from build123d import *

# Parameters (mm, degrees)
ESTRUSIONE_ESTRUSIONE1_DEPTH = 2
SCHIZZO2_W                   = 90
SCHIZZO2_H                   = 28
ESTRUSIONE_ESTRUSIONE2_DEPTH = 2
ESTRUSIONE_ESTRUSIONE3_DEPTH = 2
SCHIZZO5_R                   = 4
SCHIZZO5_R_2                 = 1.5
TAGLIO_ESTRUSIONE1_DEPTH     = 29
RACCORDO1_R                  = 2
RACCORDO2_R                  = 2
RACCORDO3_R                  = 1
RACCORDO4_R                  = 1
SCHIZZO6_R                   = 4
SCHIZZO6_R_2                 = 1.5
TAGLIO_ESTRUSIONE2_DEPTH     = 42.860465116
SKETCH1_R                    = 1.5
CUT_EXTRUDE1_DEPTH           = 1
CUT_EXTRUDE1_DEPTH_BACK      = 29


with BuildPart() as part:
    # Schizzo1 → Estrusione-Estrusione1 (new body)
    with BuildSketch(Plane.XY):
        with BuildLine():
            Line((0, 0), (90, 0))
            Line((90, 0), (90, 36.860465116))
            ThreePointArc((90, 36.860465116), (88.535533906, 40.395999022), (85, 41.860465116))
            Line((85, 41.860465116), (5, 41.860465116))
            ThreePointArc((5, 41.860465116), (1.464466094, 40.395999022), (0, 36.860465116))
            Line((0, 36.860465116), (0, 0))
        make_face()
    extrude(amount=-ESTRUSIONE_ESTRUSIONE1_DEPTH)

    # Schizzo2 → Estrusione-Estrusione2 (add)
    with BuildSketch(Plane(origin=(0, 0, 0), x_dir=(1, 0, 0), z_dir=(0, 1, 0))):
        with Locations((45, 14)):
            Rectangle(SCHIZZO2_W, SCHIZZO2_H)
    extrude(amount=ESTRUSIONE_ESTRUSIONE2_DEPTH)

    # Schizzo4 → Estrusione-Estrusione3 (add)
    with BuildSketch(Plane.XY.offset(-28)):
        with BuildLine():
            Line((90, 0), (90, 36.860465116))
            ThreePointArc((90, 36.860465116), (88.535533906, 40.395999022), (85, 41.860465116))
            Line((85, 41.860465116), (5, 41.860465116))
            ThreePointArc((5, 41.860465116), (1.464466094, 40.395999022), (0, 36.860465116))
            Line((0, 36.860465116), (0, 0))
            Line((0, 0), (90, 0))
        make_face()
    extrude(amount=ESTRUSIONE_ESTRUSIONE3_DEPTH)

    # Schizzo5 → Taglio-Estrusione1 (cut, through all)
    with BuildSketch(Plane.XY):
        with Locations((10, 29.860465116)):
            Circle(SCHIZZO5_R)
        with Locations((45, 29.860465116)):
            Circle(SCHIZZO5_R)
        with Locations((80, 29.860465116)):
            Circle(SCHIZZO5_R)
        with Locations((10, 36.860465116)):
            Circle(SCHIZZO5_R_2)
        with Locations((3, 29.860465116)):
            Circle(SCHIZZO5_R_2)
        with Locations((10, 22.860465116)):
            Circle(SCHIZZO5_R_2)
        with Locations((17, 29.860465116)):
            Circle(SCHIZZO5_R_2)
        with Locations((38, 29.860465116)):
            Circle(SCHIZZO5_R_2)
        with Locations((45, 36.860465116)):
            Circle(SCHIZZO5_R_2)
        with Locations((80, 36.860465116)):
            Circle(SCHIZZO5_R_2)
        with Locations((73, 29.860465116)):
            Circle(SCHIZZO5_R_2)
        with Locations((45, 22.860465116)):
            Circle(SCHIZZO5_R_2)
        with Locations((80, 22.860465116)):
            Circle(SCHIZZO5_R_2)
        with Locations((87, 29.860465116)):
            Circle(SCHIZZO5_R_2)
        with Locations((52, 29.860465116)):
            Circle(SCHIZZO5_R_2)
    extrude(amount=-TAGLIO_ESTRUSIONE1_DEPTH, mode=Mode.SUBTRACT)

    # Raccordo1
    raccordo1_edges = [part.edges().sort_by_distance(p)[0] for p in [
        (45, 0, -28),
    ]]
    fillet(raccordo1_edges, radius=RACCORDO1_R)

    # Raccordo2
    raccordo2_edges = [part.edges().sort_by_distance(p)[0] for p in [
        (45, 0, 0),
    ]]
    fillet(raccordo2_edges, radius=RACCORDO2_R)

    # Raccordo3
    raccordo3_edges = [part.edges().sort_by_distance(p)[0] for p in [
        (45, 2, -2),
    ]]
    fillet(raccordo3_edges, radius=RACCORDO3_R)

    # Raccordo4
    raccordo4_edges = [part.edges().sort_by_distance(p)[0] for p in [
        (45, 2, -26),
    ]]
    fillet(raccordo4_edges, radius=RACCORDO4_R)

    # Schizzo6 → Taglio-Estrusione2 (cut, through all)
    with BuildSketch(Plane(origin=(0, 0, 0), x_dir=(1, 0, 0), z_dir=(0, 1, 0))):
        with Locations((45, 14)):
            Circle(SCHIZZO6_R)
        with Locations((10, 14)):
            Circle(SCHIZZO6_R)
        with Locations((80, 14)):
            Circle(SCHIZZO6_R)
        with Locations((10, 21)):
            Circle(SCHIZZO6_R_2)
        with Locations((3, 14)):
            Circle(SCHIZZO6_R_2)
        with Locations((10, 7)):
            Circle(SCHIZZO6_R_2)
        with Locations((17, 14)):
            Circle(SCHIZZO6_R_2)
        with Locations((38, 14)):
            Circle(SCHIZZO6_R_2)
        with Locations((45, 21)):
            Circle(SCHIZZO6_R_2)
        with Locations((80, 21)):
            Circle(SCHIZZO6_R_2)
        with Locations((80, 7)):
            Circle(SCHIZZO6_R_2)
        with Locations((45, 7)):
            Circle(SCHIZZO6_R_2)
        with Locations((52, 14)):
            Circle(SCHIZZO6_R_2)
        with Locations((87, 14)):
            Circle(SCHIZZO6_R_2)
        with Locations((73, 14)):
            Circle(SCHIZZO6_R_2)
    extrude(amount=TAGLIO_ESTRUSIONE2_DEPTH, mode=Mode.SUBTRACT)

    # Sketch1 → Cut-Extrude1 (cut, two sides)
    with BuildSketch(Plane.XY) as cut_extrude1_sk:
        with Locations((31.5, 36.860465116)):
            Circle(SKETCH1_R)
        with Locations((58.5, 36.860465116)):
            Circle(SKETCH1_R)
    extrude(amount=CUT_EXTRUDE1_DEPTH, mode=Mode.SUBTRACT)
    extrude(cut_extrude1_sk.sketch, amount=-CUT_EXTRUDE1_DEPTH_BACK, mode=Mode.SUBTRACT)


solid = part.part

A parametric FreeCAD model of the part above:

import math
import FreeCAD as App
import Part
import Sketcher
Q = App.Units.Quantity


def edges_at(feature, points):
    """Names of the edges that pass closest to the given points."""
    edges = feature.Shape.Edges
    near = lambda p: min(range(len(edges)), key=lambda i: edges[i].distToShape(Part.Vertex(*p))[0])
    return sorted({f"Edge{near(p) + 1}" for p in points})

doc = App.newDocument("Part")
body = doc.addObject("PartDesign::Body", "Body")

# Sketch on XY plane
sketch1 = body.newObject("Sketcher::SketchObject", "Sketch")
sketch1.AttachmentSupport = (doc.getObject("XY_Plane"), [""])
sketch1.MapMode = "FlatFace"
sketch1.addGeometry(Part.LineSegment(App.Vector(0, 0, 0), App.Vector(90, 0, 0)), False)
sketch1.addGeometry(Part.LineSegment(App.Vector(90, 0, 0), App.Vector(90, 36.860465, 0)), False)
sketch1.addGeometry(Part.ArcOfCircle(Part.Circle(App.Vector(85, 36.860465, 0), App.Vector(0, 0, 1), 5), math.radians(0), math.radians(90)), False)
sketch1.addGeometry(Part.LineSegment(App.Vector(85, 41.860465, 0), App.Vector(5, 41.860465, 0)), False)
sketch1.addGeometry(Part.ArcOfCircle(Part.Circle(App.Vector(5, 36.860465, 0), App.Vector(0, 0, 1), 5), math.radians(90), math.radians(180)), False)
sketch1.addGeometry(Part.LineSegment(App.Vector(0, 36.860465, 0), App.Vector(0, 0, 0)), False)
sketch1.addConstraint(Sketcher.Constraint("Coincident", 0, 2, 1, 1))
sketch1.addConstraint(Sketcher.Constraint("Tangent", 1, 2, 2, 1))
sketch1.addConstraint(Sketcher.Constraint("Tangent", 2, 2, 3, 1))
sketch1.addConstraint(Sketcher.Constraint("Tangent", 3, 2, 4, 1))
sketch1.addConstraint(Sketcher.Constraint("Tangent", 4, 2, 5, 1))
sketch1.addConstraint(Sketcher.Constraint("Coincident", 5, 2, 0, 1))
sketch1.addConstraint(Sketcher.Constraint("Horizontal", 0))
sketch1.addConstraint(Sketcher.Constraint("Vertical", 1))
sketch1.addConstraint(Sketcher.Constraint("Horizontal", 3))
sketch1.addConstraint(Sketcher.Constraint("Vertical", 5))
sketch1.addConstraint(Sketcher.Constraint("Coincident", 5, 2, -1, 1))
sketch1.addConstraint(Sketcher.Constraint("Equal", 2, 4))
sketch1.addConstraint(Sketcher.Constraint("Radius", 2, Q("5 mm")))
sketch1.addConstraint(Sketcher.Constraint("DistanceX", 0, 1, 0, 2, Q("90 mm")))
sketch1.addConstraint(Sketcher.Constraint("DistanceY", 1, 1, 1, 2, Q("36.860465 mm")))
pad1 = body.newObject("PartDesign::Pad", "Pad")
pad1.Profile = sketch1
pad1.Length = 2
pad1.Reversed = True

# Sketch on XZ plane
sketch2 = body.newObject("Sketcher::SketchObject", "Sketch001")
sketch2.AttachmentSupport = (doc.getObject("XZ_Plane"), [""])
sketch2.MapMode = "FlatFace"
sketch2.addGeometry(Part.LineSegment(App.Vector(0, -28, 0), App.Vector(0, 0, 0)), False)
sketch2.addGeometry(Part.LineSegment(App.Vector(0, 0, 0), App.Vector(90, 0, 0)), False)
sketch2.addGeometry(Part.LineSegment(App.Vector(90, 0, 0), App.Vector(90, -28, 0)), False)
sketch2.addGeometry(Part.LineSegment(App.Vector(90, -28, 0), App.Vector(0, -28, 0)), False)
sketch2.addConstraint(Sketcher.Constraint("Coincident", 0, 2, 1, 1))
sketch2.addConstraint(Sketcher.Constraint("Coincident", 1, 2, 2, 1))
sketch2.addConstraint(Sketcher.Constraint("Coincident", 2, 2, 3, 1))
sketch2.addConstraint(Sketcher.Constraint("Coincident", 3, 2, 0, 1))
sketch2.addConstraint(Sketcher.Constraint("Vertical", 0))
sketch2.addConstraint(Sketcher.Constraint("Horizontal", 1))
sketch2.addConstraint(Sketcher.Constraint("Vertical", 2))
sketch2.addConstraint(Sketcher.Constraint("Horizontal", 3))
sketch2.addConstraint(Sketcher.Constraint("Coincident", 0, 2, -1, 1))
sketch2.addConstraint(Sketcher.Constraint("DistanceX", 1, 1, 1, 2, Q("90 mm")))
sketch2.addConstraint(Sketcher.Constraint("DistanceY", 0, 1, 0, 2, Q("28 mm")))
pad2 = body.newObject("PartDesign::Pad", "Pad001")
pad2.Profile = sketch2
pad2.Length = 2
pad2.Reversed = True

# Sketch on XY plane
sketch3 = body.newObject("Sketcher::SketchObject", "Sketch002")
sketch3.AttachmentSupport = (doc.getObject("XY_Plane"), [""])
sketch3.MapMode = "FlatFace"
sketch3.AttachmentOffset = App.Placement(App.Vector(0, 0, -28), App.Rotation())
sketch3.addGeometry(Part.LineSegment(App.Vector(90, 0, 0), App.Vector(90, 36.860465, 0)), False)
sketch3.addGeometry(Part.ArcOfCircle(Part.Circle(App.Vector(85, 36.860465, 0), App.Vector(0, 0, 1), 5), math.radians(0), math.radians(90)), False)
sketch3.addGeometry(Part.LineSegment(App.Vector(85, 41.860465, 0), App.Vector(5, 41.860465, 0)), False)
sketch3.addGeometry(Part.ArcOfCircle(Part.Circle(App.Vector(5, 36.860465, 0), App.Vector(0, 0, 1), 5), math.radians(90), math.radians(180)), False)
sketch3.addGeometry(Part.LineSegment(App.Vector(0, 36.860465, 0), App.Vector(0, 0, 0)), False)
sketch3.addGeometry(Part.LineSegment(App.Vector(0, 0, 0), App.Vector(90, 0, 0)), False)
sketch3.addConstraint(Sketcher.Constraint("Tangent", 0, 2, 1, 1))
sketch3.addConstraint(Sketcher.Constraint("Tangent", 1, 2, 2, 1))
sketch3.addConstraint(Sketcher.Constraint("Tangent", 2, 2, 3, 1))
sketch3.addConstraint(Sketcher.Constraint("Tangent", 3, 2, 4, 1))
sketch3.addConstraint(Sketcher.Constraint("Coincident", 4, 2, 5, 1))
sketch3.addConstraint(Sketcher.Constraint("Coincident", 5, 2, 0, 1))
sketch3.addConstraint(Sketcher.Constraint("Vertical", 0))
sketch3.addConstraint(Sketcher.Constraint("Horizontal", 2))
sketch3.addConstraint(Sketcher.Constraint("Vertical", 4))
sketch3.addConstraint(Sketcher.Constraint("Horizontal", 5))
sketch3.addConstraint(Sketcher.Constraint("Coincident", 4, 2, -1, 1))
sketch3.addConstraint(Sketcher.Constraint("Equal", 1, 3))
sketch3.addConstraint(Sketcher.Constraint("Radius", 1, Q("5 mm")))
sketch3.addConstraint(Sketcher.Constraint("DistanceX", 2, 2, 2, 1, Q("80 mm")))
sketch3.addConstraint(Sketcher.Constraint("DistanceY", 0, 1, 0, 2, Q("36.860465 mm")))
pad3 = body.newObject("PartDesign::Pad", "Pad002")
pad3.Profile = sketch3
pad3.Length = 2

# Sketch on XY plane
sketch4 = body.newObject("Sketcher::SketchObject", "Sketch003")
sketch4.AttachmentSupport = (doc.getObject("XY_Plane"), [""])
sketch4.MapMode = "FlatFace"
sketch4.addGeometry(Part.Circle(App.Vector(10, 29.860465, 0), App.Vector(0, 0, 1), 4), False)
sketch4.addGeometry(Part.Circle(App.Vector(45, 29.860465, 0), App.Vector(0, 0, 1), 4), False)
sketch4.addGeometry(Part.Circle(App.Vector(80, 29.860465, 0), App.Vector(0, 0, 1), 4), False)
sketch4.addGeometry(Part.Circle(App.Vector(10, 36.860465, 0), App.Vector(0, 0, 1), 1.5), False)
sketch4.addGeometry(Part.Circle(App.Vector(3, 29.860465, 0), App.Vector(0, 0, 1), 1.5), False)
sketch4.addGeometry(Part.Circle(App.Vector(10, 22.860465, 0), App.Vector(0, 0, 1), 1.5), False)
sketch4.addGeometry(Part.Circle(App.Vector(17, 29.860465, 0), App.Vector(0, 0, 1), 1.5), False)
sketch4.addGeometry(Part.Circle(App.Vector(38, 29.860465, 0), App.Vector(0, 0, 1), 1.5), False)
sketch4.addGeometry(Part.Circle(App.Vector(45, 36.860465, 0), App.Vector(0, 0, 1), 1.5), False)
sketch4.addGeometry(Part.Circle(App.Vector(80, 36.860465, 0), App.Vector(0, 0, 1), 1.5), False)
sketch4.addGeometry(Part.Circle(App.Vector(73, 29.860465, 0), App.Vector(0, 0, 1), 1.5), False)
sketch4.addGeometry(Part.Circle(App.Vector(45, 22.860465, 0), App.Vector(0, 0, 1), 1.5), False)
sketch4.addGeometry(Part.Circle(App.Vector(80, 22.860465, 0), App.Vector(0, 0, 1), 1.5), False)
sketch4.addGeometry(Part.Circle(App.Vector(87, 29.860465, 0), App.Vector(0, 0, 1), 1.5), False)
sketch4.addGeometry(Part.Circle(App.Vector(52, 29.860465, 0), App.Vector(0, 0, 1), 1.5), False)
sketch4.addConstraint(Sketcher.Constraint("Equal", 0, 1))
sketch4.addConstraint(Sketcher.Constraint("Equal", 1, 2))
sketch4.addConstraint(Sketcher.Constraint("Equal", 3, 4))
sketch4.addConstraint(Sketcher.Constraint("Equal", 4, 5))
sketch4.addConstraint(Sketcher.Constraint("Equal", 5, 6))
sketch4.addConstraint(Sketcher.Constraint("Equal", 6, 7))
sketch4.addConstraint(Sketcher.Constraint("Equal", 7, 8))
sketch4.addConstraint(Sketcher.Constraint("Equal", 8, 9))
sketch4.addConstraint(Sketcher.Constraint("Equal", 9, 10))
sketch4.addConstraint(Sketcher.Constraint("Equal", 10, 11))
sketch4.addConstraint(Sketcher.Constraint("Equal", 11, 12))
sketch4.addConstraint(Sketcher.Constraint("Equal", 12, 13))
sketch4.addConstraint(Sketcher.Constraint("Equal", 13, 14))
sketch4.addConstraint(Sketcher.Constraint("Horizontal", 0, 3, 1, 3))
sketch4.addConstraint(Sketcher.Constraint("Horizontal", 1, 3, 2, 3))
sketch4.addConstraint(Sketcher.Constraint("Horizontal", 2, 3, 4, 3))
sketch4.addConstraint(Sketcher.Constraint("Horizontal", 4, 3, 6, 3))
sketch4.addConstraint(Sketcher.Constraint("Horizontal", 6, 3, 7, 3))
sketch4.addConstraint(Sketcher.Constraint("Horizontal", 3, 3, 8, 3))
sketch4.addConstraint(Sketcher.Constraint("Horizontal", 8, 3, 9, 3))
sketch4.addConstraint(Sketcher.Constraint("Horizontal", 7, 3, 10, 3))
sketch4.addConstraint(Sketcher.Constraint("Horizontal", 5, 3, 11, 3))
sketch4.addConstraint(Sketcher.Constraint("Horizontal", 11, 3, 12, 3))
sketch4.addConstraint(Sketcher.Constraint("Horizontal", 10, 3, 13, 3))
sketch4.addConstraint(Sketcher.Constraint("Horizontal", 13, 3, 14, 3))
sketch4.addConstraint(Sketcher.Constraint("Vertical", 0, 3, 3, 3))
sketch4.addConstraint(Sketcher.Constraint("Vertical", 3, 3, 5, 3))
sketch4.addConstraint(Sketcher.Constraint("Vertical", 1, 3, 8, 3))
sketch4.addConstraint(Sketcher.Constraint("Vertical", 2, 3, 9, 3))
sketch4.addConstraint(Sketcher.Constraint("Vertical", 8, 3, 11, 3))
sketch4.addConstraint(Sketcher.Constraint("Vertical", 9, 3, 12, 3))
sketch4.addConstraint(Sketcher.Constraint("Diameter", 0, Q("8 mm")))
sketch4.addConstraint(Sketcher.Constraint("Diameter", 3, Q("3 mm")))
sketch4.addConstraint(Sketcher.Constraint("DistanceX", -1, 1, 0, 3, Q("10 mm")))
sketch4.addConstraint(Sketcher.Constraint("DistanceX", -1, 1, 1, 3, Q("45 mm")))
sketch4.addConstraint(Sketcher.Constraint("DistanceX", -1, 1, 2, 3, Q("80 mm")))
sketch4.addConstraint(Sketcher.Constraint("DistanceX", -1, 1, 4, 3, Q("3 mm")))
sketch4.addConstraint(Sketcher.Constraint("DistanceX", -1, 1, 6, 3, Q("17 mm")))
sketch4.addConstraint(Sketcher.Constraint("DistanceX", -1, 1, 7, 3, Q("38 mm")))
sketch4.addConstraint(Sketcher.Constraint("DistanceX", -1, 1, 10, 3, Q("73 mm")))
sketch4.addConstraint(Sketcher.Constraint("DistanceX", -1, 1, 13, 3, Q("87 mm")))
sketch4.addConstraint(Sketcher.Constraint("DistanceX", -1, 1, 14, 3, Q("52 mm")))
sketch4.addConstraint(Sketcher.Constraint("DistanceY", 0, 3, 3, 3, Q("7 mm")))
sketch4.addConstraint(Sketcher.Constraint("DistanceY", 5, 3, 0, 3, Q("7 mm")))
sketch4.addConstraint(Sketcher.Constraint("DistanceY", -1, 1, 0, 3, Q("29.860465 mm")))
pocket1 = body.newObject("PartDesign::Pocket", "Pocket")
pocket1.Profile = sketch4
pocket1.Type = "ThroughAll"
doc.recompute()

fillet = body.newObject("PartDesign::Fillet", "Fillet")
fillet.Base = (pocket1, edges_at(pocket1, [(45, 0, -28)]))
fillet.Radius = 2
doc.recompute()

fillet2 = body.newObject("PartDesign::Fillet", "Fillet001")
fillet2.Base = (fillet, edges_at(fillet, [(45, 0, 0)]))
fillet2.Radius = 2
doc.recompute()

fillet3 = body.newObject("PartDesign::Fillet", "Fillet002")
fillet3.Base = (fillet2, edges_at(fillet2, [(45, 2, -2)]))
fillet3.Radius = 1
doc.recompute()

fillet4 = body.newObject("PartDesign::Fillet", "Fillet003")
fillet4.Base = (fillet3, edges_at(fillet3, [(45, 2, -26)]))
fillet4.Radius = 1

# Sketch on XZ plane
sketch5 = body.newObject("Sketcher::SketchObject", "Sketch004")
sketch5.AttachmentSupport = (doc.getObject("XZ_Plane"), [""])
sketch5.MapMode = "FlatFace"
sketch5.addGeometry(Part.Circle(App.Vector(45, -14, 0), App.Vector(0, 0, 1), 4), False)
sketch5.addGeometry(Part.Circle(App.Vector(10, -14, 0), App.Vector(0, 0, 1), 4), False)
sketch5.addGeometry(Part.Circle(App.Vector(80, -14, 0), App.Vector(0, 0, 1), 4), False)
sketch5.addGeometry(Part.Circle(App.Vector(10, -21, 0), App.Vector(0, 0, 1), 1.5), False)
sketch5.addGeometry(Part.Circle(App.Vector(3, -14, 0), App.Vector(0, 0, 1), 1.5), False)
sketch5.addGeometry(Part.Circle(App.Vector(10, -7, 0), App.Vector(0, 0, 1), 1.5), False)
sketch5.addGeometry(Part.Circle(App.Vector(17, -14, 0), App.Vector(0, 0, 1), 1.5), False)
sketch5.addGeometry(Part.Circle(App.Vector(38, -14, 0), App.Vector(0, 0, 1), 1.5), False)
sketch5.addGeometry(Part.Circle(App.Vector(45, -21, 0), App.Vector(0, 0, 1), 1.5), False)
sketch5.addGeometry(Part.Circle(App.Vector(80, -21, 0), App.Vector(0, 0, 1), 1.5), False)
sketch5.addGeometry(Part.Circle(App.Vector(80, -7, 0), App.Vector(0, 0, 1), 1.5), False)
sketch5.addGeometry(Part.Circle(App.Vector(45, -7, 0), App.Vector(0, 0, 1), 1.5), False)
sketch5.addGeometry(Part.Circle(App.Vector(52, -14, 0), App.Vector(0, 0, 1), 1.5), False)
sketch5.addGeometry(Part.Circle(App.Vector(87, -14, 0), App.Vector(0, 0, 1), 1.5), False)
sketch5.addGeometry(Part.Circle(App.Vector(73, -14, 0), App.Vector(0, 0, 1), 1.5), False)
sketch5.addConstraint(Sketcher.Constraint("Equal", 0, 1))
sketch5.addConstraint(Sketcher.Constraint("Equal", 1, 2))
sketch5.addConstraint(Sketcher.Constraint("Equal", 3, 4))
sketch5.addConstraint(Sketcher.Constraint("Equal", 4, 5))
sketch5.addConstraint(Sketcher.Constraint("Equal", 5, 6))
sketch5.addConstraint(Sketcher.Constraint("Equal", 6, 7))
sketch5.addConstraint(Sketcher.Constraint("Equal", 7, 8))
sketch5.addConstraint(Sketcher.Constraint("Equal", 8, 9))
sketch5.addConstraint(Sketcher.Constraint("Equal", 9, 10))
sketch5.addConstraint(Sketcher.Constraint("Equal", 10, 11))
sketch5.addConstraint(Sketcher.Constraint("Equal", 11, 12))
sketch5.addConstraint(Sketcher.Constraint("Equal", 12, 13))
sketch5.addConstraint(Sketcher.Constraint("Equal", 13, 14))
sketch5.addConstraint(Sketcher.Constraint("Horizontal", 0, 3, 1, 3))
sketch5.addConstraint(Sketcher.Constraint("Horizontal", 1, 3, 2, 3))
sketch5.addConstraint(Sketcher.Constraint("Horizontal", 2, 3, 4, 3))
sketch5.addConstraint(Sketcher.Constraint("Horizontal", 4, 3, 6, 3))
sketch5.addConstraint(Sketcher.Constraint("Horizontal", 6, 3, 7, 3))
sketch5.addConstraint(Sketcher.Constraint("Horizontal", 3, 3, 8, 3))
sketch5.addConstraint(Sketcher.Constraint("Horizontal", 8, 3, 9, 3))
sketch5.addConstraint(Sketcher.Constraint("Horizontal", 5, 3, 10, 3))
sketch5.addConstraint(Sketcher.Constraint("Horizontal", 10, 3, 11, 3))
sketch5.addConstraint(Sketcher.Constraint("Horizontal", 7, 3, 12, 3))
sketch5.addConstraint(Sketcher.Constraint("Horizontal", 12, 3, 13, 3))
sketch5.addConstraint(Sketcher.Constraint("Horizontal", 13, 3, 14, 3))
sketch5.addConstraint(Sketcher.Constraint("Vertical", 1, 3, 3, 3))
sketch5.addConstraint(Sketcher.Constraint("Vertical", 3, 3, 5, 3))
sketch5.addConstraint(Sketcher.Constraint("Vertical", 0, 3, 8, 3))
sketch5.addConstraint(Sketcher.Constraint("Vertical", 2, 3, 9, 3))
sketch5.addConstraint(Sketcher.Constraint("Vertical", 9, 3, 10, 3))
sketch5.addConstraint(Sketcher.Constraint("Vertical", 8, 3, 11, 3))
sketch5.addConstraint(Sketcher.Constraint("Diameter", 0, Q("8 mm")))
sketch5.addConstraint(Sketcher.Constraint("Diameter", 3, Q("3 mm")))
sketch5.addConstraint(Sketcher.Constraint("DistanceX", -1, 1, 0, 3, Q("45 mm")))
sketch5.addConstraint(Sketcher.Constraint("DistanceY", 0, 3, -1, 1, Q("14 mm")))
sketch5.addConstraint(Sketcher.Constraint("DistanceX", -1, 1, 1, 3, Q("10 mm")))
sketch5.addConstraint(Sketcher.Constraint("DistanceX", -1, 1, 2, 3, Q("80 mm")))
sketch5.addConstraint(Sketcher.Constraint("DistanceY", 3, 3, -1, 1, Q("21 mm")))
sketch5.addConstraint(Sketcher.Constraint("DistanceX", -1, 1, 4, 3, Q("3 mm")))
sketch5.addConstraint(Sketcher.Constraint("DistanceY", 5, 3, -1, 1, Q("7 mm")))
sketch5.addConstraint(Sketcher.Constraint("DistanceX", -1, 1, 6, 3, Q("17 mm")))
sketch5.addConstraint(Sketcher.Constraint("DistanceX", -1, 1, 7, 3, Q("38 mm")))
sketch5.addConstraint(Sketcher.Constraint("DistanceX", -1, 1, 12, 3, Q("52 mm")))
sketch5.addConstraint(Sketcher.Constraint("DistanceX", -1, 1, 13, 3, Q("87 mm")))
sketch5.addConstraint(Sketcher.Constraint("DistanceX", -1, 1, 14, 3, Q("73 mm")))
pocket2 = body.newObject("PartDesign::Pocket", "Pocket001")
pocket2.Profile = sketch5
pocket2.Type = "ThroughAll"

# Sketch on XY plane
sketch6 = body.newObject("Sketcher::SketchObject", "Sketch005")
sketch6.AttachmentSupport = (doc.getObject("XY_Plane"), [""])
sketch6.MapMode = "FlatFace"
sketch6.addGeometry(Part.Circle(App.Vector(31.5, 36.860465, 0), App.Vector(0, 0, 1), 1.5), False)
sketch6.addGeometry(Part.Circle(App.Vector(58.5, 36.860465, 0), App.Vector(0, 0, 1), 1.5), False)
sketch6.addConstraint(Sketcher.Constraint("Equal", 0, 1))
sketch6.addConstraint(Sketcher.Constraint("Horizontal", 0, 3, 1, 3))
sketch6.addConstraint(Sketcher.Constraint("Diameter", 0, Q("3 mm")))
sketch6.addConstraint(Sketcher.Constraint("DistanceX", 0, 3, 1, 3, Q("27 mm")))
sketch6.addConstraint(Sketcher.Constraint("DistanceX", -1, 1, 0, 3, Q("31.5 mm")))
sketch6.addConstraint(Sketcher.Constraint("DistanceY", -1, 1, 0, 3, Q("36.860465 mm")))
pocket3 = body.newObject("PartDesign::Pocket", "Pocket002")
pocket3.Profile = sketch6
pocket3.Type = "ThroughAll"
pocket3.Midplane = True

doc.recompute()
